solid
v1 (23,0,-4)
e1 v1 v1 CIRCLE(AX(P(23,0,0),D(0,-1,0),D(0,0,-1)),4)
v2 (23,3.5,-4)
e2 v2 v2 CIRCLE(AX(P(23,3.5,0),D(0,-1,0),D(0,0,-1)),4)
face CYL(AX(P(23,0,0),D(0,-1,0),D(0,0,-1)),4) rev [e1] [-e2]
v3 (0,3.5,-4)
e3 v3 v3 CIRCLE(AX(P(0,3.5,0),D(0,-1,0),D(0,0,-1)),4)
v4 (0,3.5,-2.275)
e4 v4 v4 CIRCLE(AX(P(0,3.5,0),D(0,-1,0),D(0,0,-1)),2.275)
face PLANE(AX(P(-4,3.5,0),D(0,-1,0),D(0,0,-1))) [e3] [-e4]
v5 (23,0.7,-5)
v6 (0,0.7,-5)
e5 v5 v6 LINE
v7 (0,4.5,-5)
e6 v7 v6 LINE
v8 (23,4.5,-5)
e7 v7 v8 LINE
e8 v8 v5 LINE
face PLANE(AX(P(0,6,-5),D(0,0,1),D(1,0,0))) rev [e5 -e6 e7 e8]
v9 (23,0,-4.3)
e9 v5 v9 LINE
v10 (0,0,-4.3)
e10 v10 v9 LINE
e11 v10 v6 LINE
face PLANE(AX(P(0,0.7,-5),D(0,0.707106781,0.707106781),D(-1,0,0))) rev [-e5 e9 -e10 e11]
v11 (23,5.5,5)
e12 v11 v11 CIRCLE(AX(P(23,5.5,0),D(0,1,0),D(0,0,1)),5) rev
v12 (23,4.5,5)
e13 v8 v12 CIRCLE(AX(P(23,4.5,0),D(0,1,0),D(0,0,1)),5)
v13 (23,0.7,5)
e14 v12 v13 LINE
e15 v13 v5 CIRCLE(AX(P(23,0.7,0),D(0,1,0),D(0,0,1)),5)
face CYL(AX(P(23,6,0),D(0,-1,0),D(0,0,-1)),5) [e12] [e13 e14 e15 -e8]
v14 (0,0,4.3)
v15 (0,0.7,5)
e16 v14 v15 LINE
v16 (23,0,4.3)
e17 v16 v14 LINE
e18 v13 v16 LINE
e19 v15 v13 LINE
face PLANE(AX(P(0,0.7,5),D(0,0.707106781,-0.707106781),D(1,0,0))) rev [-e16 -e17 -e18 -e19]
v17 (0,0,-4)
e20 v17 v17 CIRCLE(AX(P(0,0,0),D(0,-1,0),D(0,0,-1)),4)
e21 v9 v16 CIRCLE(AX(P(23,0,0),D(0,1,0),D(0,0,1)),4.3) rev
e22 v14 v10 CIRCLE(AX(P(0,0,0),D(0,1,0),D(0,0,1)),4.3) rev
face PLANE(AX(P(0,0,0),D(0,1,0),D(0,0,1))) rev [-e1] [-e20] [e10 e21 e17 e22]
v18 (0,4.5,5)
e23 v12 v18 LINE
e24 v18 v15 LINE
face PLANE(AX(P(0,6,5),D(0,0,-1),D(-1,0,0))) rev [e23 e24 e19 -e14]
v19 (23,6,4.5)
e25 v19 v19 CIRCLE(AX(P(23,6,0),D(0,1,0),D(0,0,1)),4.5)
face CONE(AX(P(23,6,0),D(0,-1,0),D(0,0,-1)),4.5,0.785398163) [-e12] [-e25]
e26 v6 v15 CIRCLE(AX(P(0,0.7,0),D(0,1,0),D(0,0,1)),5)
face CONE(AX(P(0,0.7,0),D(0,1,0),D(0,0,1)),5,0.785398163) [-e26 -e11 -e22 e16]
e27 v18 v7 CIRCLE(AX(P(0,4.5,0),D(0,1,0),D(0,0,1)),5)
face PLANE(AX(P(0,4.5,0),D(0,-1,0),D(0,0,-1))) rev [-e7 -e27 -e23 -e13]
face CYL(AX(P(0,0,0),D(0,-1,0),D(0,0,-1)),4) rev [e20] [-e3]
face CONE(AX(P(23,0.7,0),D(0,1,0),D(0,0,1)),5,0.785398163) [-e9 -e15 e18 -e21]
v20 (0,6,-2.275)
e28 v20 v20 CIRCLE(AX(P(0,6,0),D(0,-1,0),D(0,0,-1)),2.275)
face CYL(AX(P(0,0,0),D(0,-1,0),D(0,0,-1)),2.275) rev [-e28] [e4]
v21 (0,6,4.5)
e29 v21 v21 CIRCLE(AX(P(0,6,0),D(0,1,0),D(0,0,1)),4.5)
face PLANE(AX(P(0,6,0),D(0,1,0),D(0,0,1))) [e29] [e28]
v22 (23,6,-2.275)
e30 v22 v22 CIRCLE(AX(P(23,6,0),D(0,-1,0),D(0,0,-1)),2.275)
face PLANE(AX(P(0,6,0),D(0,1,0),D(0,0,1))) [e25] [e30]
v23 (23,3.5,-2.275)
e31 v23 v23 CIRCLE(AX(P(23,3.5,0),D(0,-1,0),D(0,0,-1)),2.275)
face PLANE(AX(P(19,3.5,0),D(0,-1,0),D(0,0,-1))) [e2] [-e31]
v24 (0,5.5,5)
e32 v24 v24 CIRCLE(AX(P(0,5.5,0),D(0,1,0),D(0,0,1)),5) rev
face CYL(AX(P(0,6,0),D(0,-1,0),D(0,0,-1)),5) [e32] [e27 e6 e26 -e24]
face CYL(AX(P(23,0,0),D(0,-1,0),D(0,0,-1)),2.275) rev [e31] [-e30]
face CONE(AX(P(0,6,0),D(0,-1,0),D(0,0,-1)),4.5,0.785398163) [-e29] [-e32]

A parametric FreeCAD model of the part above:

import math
import FreeCAD as App
import Part
import Sketcher


def edges_at(feature, points):
    """Names of the edges that pass closest to the given points."""
    edges = feature.Shape.Edges
    near = lambda p: min(range(len(edges)), key=lambda i: edges[i].distToShape(Part.Vertex(*p))[0])
    return sorted({f"Edge{near(p) + 1}" for p in points})

doc = App.newDocument("Part")
params = doc.addObject("Spreadsheet::Sheet", "Params")
for row, (alias, value) in enumerate([
    ("sketch1_radius", "5 mm"),
    ("sketch1_width", "23 mm"),
    ("pad1_length", "6 mm"),
    ("sketch2_width", "4 mm"),
    ("sketch2_height", "6 mm"),
    ("sketch2_height2", "3.5 mm"),
    ("groove_angle", "360 deg"),
    ("sketch3_width", "4 mm"),
    ("sketch3_height", "6 mm"),
    ("sketch3_height2", "2.5 mm"),
    ("groove2_angle", "360 deg"),
    ("sketch4_diameter", "10 mm"),
    ("pocket1_length", "1.5 mm"),
    ("chamfer_size", "0.5 mm"),
    ("chamfer2_size", "0.7 mm"),
], start=1):
    params.set(f"A{row}", alias)
    params.set(f"B{row}", "=" + value)
    params.setAlias(f"B{row}", alias)

body = doc.addObject("PartDesign::Body", "Body")

# Sketch on XZ plane
sketch1 = doc.addObject("Sketcher::SketchObject", "Sketch")
body.addObject(sketch1)
sketch1.AttachmentSupport = (doc.XZ_Plane, [""])
sketch1.MapMode = "FlatFace"
sketch1.addGeometry(Part.LineSegment(App.Vector(23, -5, 0), App.Vector(0, -5, 0)), False)
sketch1.addGeometry(Part.ArcOfCircle(Part.Circle(App.Vector(0, 0, 0), App.Vector(0, 0, 1), 5), math.radians(90), math.radians(270)), False)
sketch1.addGeometry(Part.LineSegment(App.Vector(0, 5, 0), App.Vector(23, 5, 0)), False)
sketch1.addGeometry(Part.ArcOfCircle(Part.Circle(App.Vector(23, 0, 0), App.Vector(0, 0, 1), 5), math.radians(-90), math.radians(90)), False)
sketch1.addConstraint(Sketcher.Constraint("Tangent", 0, 2, 1, 2))
sketch1.addConstraint(Sketcher.Constraint("Tangent", 1, 1, 2, 1))
sketch1.addConstraint(Sketcher.Constraint("Tangent", 2, 2, 3, 2))
sketch1.addConstraint(Sketcher.Constraint("Tangent", 3, 1, 0, 1))
sketch1.addConstraint(Sketcher.Constraint("Horizontal", 0))
sketch1.addConstraint(Sketcher.Constraint("Horizontal", 2))
sketch1.addConstraint(Sketcher.Constraint("Coincident", 1, 3, -1, 1))
sketch1.addConstraint(Sketcher.Constraint("Radius", 1, 5.0))
sketch1.addConstraint(Sketcher.Constraint("DistanceX", 0, 2, 0, 1, 23.0))
sketch1.setExpression("Constraints[7]", "Params.sketch1_radius")
sketch1.setExpression("Constraints[8]", "Params.sketch1_width")
pad1 = doc.addObject("PartDesign::Pad", "Pad")
body.addObject(pad1)
pad1.Profile = sketch1
pad1.setExpression("Length", "Params.pad1_length")
pad1.Reversed = True

# Sketch on XY plane
sketch2 = doc.addObject("Sketcher::SketchObject", "Sketch001")
body.addObject(sketch2)
sketch2.AttachmentSupport = (doc.XY_Plane, [""])
sketch2.MapMode = "FlatFace"
sketch2.addGeometry(Part.LineSegment(App.Vector(-4, 3.5, 0), App.Vector(-4, 0, 0)), False)
sketch2.addGeometry(Part.LineSegment(App.Vector(-4, 0, 0), App.Vector(0, 0, 0)), False)
sketch2.addGeometry(Part.LineSegment(App.Vector(0, 0, 0), App.Vector(0, 6, 0)), False)
sketch2.addGeometry(Part.LineSegment(App.Vector(0, 6, 0), App.Vector(-2.275, 6, 0)), False)
sketch2.addGeometry(Part.LineSegment(App.Vector(-2.275, 6, 0), App.Vector(-2.275, 3.5, 0)), False)
sketch2.addGeometry(Part.LineSegment(App.Vector(-2.275, 3.5, 0), App.Vector(-4, 3.5, 0)), False)
sketch2.addConstraint(Sketcher.Constraint("Coincident", 0, 2, 1, 1))
sketch2.addConstraint(Sketcher.Constraint("Coincident", 1, 2, 2, 1))
sketch2.addConstraint(Sketcher.Constraint("Coincident", 2, 2, 3, 1))
sketch2.addConstraint(Sketcher.Constraint("Coincident", 3, 2, 4, 1))
sketch2.addConstraint(Sketcher.Constraint("Coincident", 4, 2, 5, 1))
sketch2.addConstraint(Sketcher.Constraint("Coincident", 5, 2, 0, 1))
sketch2.addConstraint(Sketcher.Constraint("Vertical", 0))
sketch2.addConstraint(Sketcher.Constraint("Horizontal", 1))
sketch2.addConstraint(Sketcher.Constraint("Vertical", 2))
sketch2.addConstraint(Sketcher.Constraint("Horizontal", 3))
sketch2.addConstraint(Sketcher.Constraint("Vertical", 4))
sketch2.addConstraint(Sketcher.Constraint("Horizontal", 5))
sketch2.addConstraint(Sketcher.Constraint("Coincident", 1, 2, -1, 1))
sketch2.addConstraint(Sketcher.Constraint("DistanceX", 1, 1, 1, 2, 4.0))
sketch2.addConstraint(Sketcher.Constraint("DistanceY", 2, 1, 2, 2, 6.0))
sketch2.addConstraint(Sketcher.Constraint("DistanceY", 0, 2, 0, 1, 3.5))
sketch2.addConstraint(Sketcher.Constraint("DistanceX", 3, 2, 3, 1, 2.275))
sketch2.setExpression("Constraints[13]", "Params.sketch2_width")
sketch2.setExpression("Constraints[14]", "Params.sketch2_height")
sketch2.setExpression("Constraints[15]", "Params.sketch2_height2")
groove = doc.addObject("PartDesign::Groove", "Groove")
body.addObject(groove)
groove.Profile = sketch2
groove.ReferenceAxis = (sketch2, ["V_Axis"])
groove.setExpression("Angle", "Params.groove_angle")

# Sketch on XY plane
sketch3 = doc.addObject("Sketcher::SketchObject", "Sketch002")
body.addObject(sketch3)
sketch3.AttachmentSupport = (doc.XY_Plane, [""])
sketch3.MapMode = "FlatFace"
sketch3.addGeometry(Part.LineSegment(App.Vector(19, 0, 0), App.Vector(23, 0, 0)), False)
sketch3.addGeometry(Part.LineSegment(App.Vector(23, 0, 0), App.Vector(23, 6, 0)), False)
sketch3.addGeometry(Part.LineSegment(App.Vector(23, 6, 0), App.Vector(20.725, 6, 0)), False)
sketch3.addGeometry(Part.LineSegment(App.Vector(20.725, 6, 0), App.Vector(20.725, 3.5, 0)), False)
sketch3.addGeometry(Part.LineSegment(App.Vector(20.725, 3.5, 0), App.Vector(19, 3.5, 0)), False)
sketch3.addGeometry(Part.LineSegment(App.Vector(19, 3.5, 0), App.Vector(19, 0, 0)), False)
sketch3.addGeometry(Part.LineSegment(App.Vector(23, 0, 0), App.Vector(23, 6, 0)), True)  # axis
sketch3.addConstraint(Sketcher.Constraint("Coincident", 0, 2, 1, 1))
sketch3.addConstraint(Sketcher.Constraint("Coincident", 1, 2, 2, 1))
sketch3.addConstraint(Sketcher.Constraint("Coincident", 2, 2, 3, 1))
sketch3.addConstraint(Sketcher.Constraint("Coincident", 3, 2, 4, 1))
sketch3.addConstraint(Sketcher.Constraint("Coincident", 4, 2, 5, 1))
sketch3.addConstraint(Sketcher.Constraint("Coincident", 5, 2, 0, 1))
sketch3.addConstraint(Sketcher.Constraint("Horizontal", 0))
sketch3.addConstraint(Sketcher.Constraint("Vertical", 1))
sketch3.addConstraint(Sketcher.Constraint("Horizontal", 2))
sketch3.addConstraint(Sketcher.Constraint("Vertical", 3))
sketch3.addConstraint(Sketcher.Constraint("Horizontal", 4))
sketch3.addConstraint(Sketcher.Constraint("Vertical", 5))
sketch3.addConstraint(Sketcher.Constraint("Vertical", 6))
sketch3.addConstraint(Sketcher.Constraint("Coincident", 6, 1, 0, 2))
sketch3.addConstraint(Sketcher.Constraint("PointOnObject", 0, 2, -1))
sketch3.addConstraint(Sketcher.Constraint("Horizontal", 2, 2, 6, 2))
sketch3.addConstraint(Sketcher.Constraint("DistanceX", 0, 1, 0, 2, 4.0))
sketch3.addConstraint(Sketcher.Constraint("DistanceY", 1, 1, 1, 2, 6.0))
sketch3.addConstraint(Sketcher.Constraint("DistanceY", 3, 2, 3, 1, 2.5))
sketch3.addConstraint(Sketcher.Constraint("DistanceX", -1, 1, 0, 2, 23.0))
sketch3.addConstraint(Sketcher.Constraint("DistanceX", 2, 2, 2, 1, 2.275))
sketch3.setExpression("Constraints[16]", "Params.sketch3_width")
sketch3.setExpression("Constraints[17]", "Params.sketch3_height")
sketch3.setExpression("Constraints[18]", "Params.sketch3_height2")
groove2 = doc.addObject("PartDesign::Groove", "Groove001")
body.addObject(groove2)
groove2.Profile = sketch3
groove2.ReferenceAxis = (sketch3, ["Axis0"])
groove2.setExpression("Angle", "Params.groove2_angle")

# Sketch on XZ plane
sketch4 = doc.addObject("Sketcher::SketchObject", "Sketch003")
body.addObject(sketch4)
sketch4.AttachmentSupport = (doc.XZ_Plane, [""])
sketch4.MapMode = "FlatFace"
sketch4.AttachmentOffset = App.Placement(App.Vector(0, 0, -4.5), App.Rotation())
sketch4.addGeometry(Part.LineSegment(App.Vector(-22.716347, -24.989413, 0), App.Vector(-22.716347, 22.157813, 0)), False)
sketch4.addGeometry(Part.LineSegment(App.Vector(-22.716347, 22.157813, 0), App.Vector(52.07484, 22.157813, 0)), False)
sketch4.addGeometry(Part.LineSegment(App.Vector(52.07484, 22.157813, 0), App.Vector(52.07484, -24.989413, 0)), False)
sketch4.addGeometry(Part.LineSegment(App.Vector(52.07484, -24.989413, 0), App.Vector(-22.716347, -24.989413, 0)), False)
sketch4.addGeometry(Part.Circle(App.Vector(0, 0, 0), App.Vector(0, 0, 1), 5), False)
sketch4.addGeometry(Part.Circle(App.Vector(23, 0, 0), App.Vector(0, 0, 1), 5), False)
sketch4.addConstraint(Sketcher.Constraint("Coincident", 0, 2, 1, 1))
sketch4.addConstraint(Sketcher.Constraint("Coincident", 1, 2, 2, 1))
sketch4.addConstraint(Sketcher.Constraint("Coincident", 2, 2, 3, 1))
sketch4.addConstraint(Sketcher.Constraint("Coincident", 3, 2, 0, 1))
sketch4.addConstraint(Sketcher.Constraint("Vertical", 0))
sketch4.addConstraint(Sketcher.Constraint("Horizontal", 1))
sketch4.addConstraint(Sketcher.Constraint("Vertical", 2))
sketch4.addConstraint(Sketcher.Constraint("Horizontal", 3))
sketch4.addConstraint(Sketcher.Constraint("Coincident", 4, 3, -1, 1))
sketch4.addConstraint(Sketcher.Constraint("Equal", 4, 5))
sketch4.addConstraint(Sketcher.Constraint("PointOnObject", 5, 3, -1))
sketch4.addConstraint(Sketcher.Constraint("Diameter", 4, 10.0))
sketch4.addConstraint(Sketcher.Constraint("DistanceX", -1, 1, 5, 3, 23.0))
sketch4.addConstraint(Sketcher.Constraint("DistanceX", 1, 1, 1, 2, 74.791187))
sketch4.addConstraint(Sketcher.Constraint("DistanceY", 0, 1, 0, 2, 47.147226))
sketch4.addConstraint(Sketcher.Constraint("DistanceX", -1, 1, 1, 2, 52.07484))
sketch4.addConstraint(Sketcher.Constraint("DistanceY", -1, 1, 0, 2, 22.157813))
sketch4.setExpression("Constraints[11]", "Params.sketch4_diameter")
pocket1 = doc.addObject("PartDesign::Pocket", "Pocket")
body.addObject(pocket1)
pocket1.Profile = sketch4
pocket1.setExpression("Length", "Params.pocket1_length")
doc.recompute()

chamfer = doc.addObject("PartDesign::Chamfer", "Chamfer")
body.addObject(chamfer)
chamfer.Base = (pocket1, edges_at(pocket1, [(23, 6, 5), (0, 6, -5)]))
chamfer.setExpression("Size", "Params.chamfer_size")
doc.recompute()

chamfer2 = doc.addObject("PartDesign::Chamfer", "Chamfer001")
body.addObject(chamfer2)
chamfer2.Base = (chamfer, edges_at(chamfer, [
    (11.5, 0, -5),
    (28, 0, 0),
    (11.5, 0, 5),
    (-5, 0, 0),
]))
chamfer2.setExpression("Size", "Params.chamfer2_size")

doc.recompute()
